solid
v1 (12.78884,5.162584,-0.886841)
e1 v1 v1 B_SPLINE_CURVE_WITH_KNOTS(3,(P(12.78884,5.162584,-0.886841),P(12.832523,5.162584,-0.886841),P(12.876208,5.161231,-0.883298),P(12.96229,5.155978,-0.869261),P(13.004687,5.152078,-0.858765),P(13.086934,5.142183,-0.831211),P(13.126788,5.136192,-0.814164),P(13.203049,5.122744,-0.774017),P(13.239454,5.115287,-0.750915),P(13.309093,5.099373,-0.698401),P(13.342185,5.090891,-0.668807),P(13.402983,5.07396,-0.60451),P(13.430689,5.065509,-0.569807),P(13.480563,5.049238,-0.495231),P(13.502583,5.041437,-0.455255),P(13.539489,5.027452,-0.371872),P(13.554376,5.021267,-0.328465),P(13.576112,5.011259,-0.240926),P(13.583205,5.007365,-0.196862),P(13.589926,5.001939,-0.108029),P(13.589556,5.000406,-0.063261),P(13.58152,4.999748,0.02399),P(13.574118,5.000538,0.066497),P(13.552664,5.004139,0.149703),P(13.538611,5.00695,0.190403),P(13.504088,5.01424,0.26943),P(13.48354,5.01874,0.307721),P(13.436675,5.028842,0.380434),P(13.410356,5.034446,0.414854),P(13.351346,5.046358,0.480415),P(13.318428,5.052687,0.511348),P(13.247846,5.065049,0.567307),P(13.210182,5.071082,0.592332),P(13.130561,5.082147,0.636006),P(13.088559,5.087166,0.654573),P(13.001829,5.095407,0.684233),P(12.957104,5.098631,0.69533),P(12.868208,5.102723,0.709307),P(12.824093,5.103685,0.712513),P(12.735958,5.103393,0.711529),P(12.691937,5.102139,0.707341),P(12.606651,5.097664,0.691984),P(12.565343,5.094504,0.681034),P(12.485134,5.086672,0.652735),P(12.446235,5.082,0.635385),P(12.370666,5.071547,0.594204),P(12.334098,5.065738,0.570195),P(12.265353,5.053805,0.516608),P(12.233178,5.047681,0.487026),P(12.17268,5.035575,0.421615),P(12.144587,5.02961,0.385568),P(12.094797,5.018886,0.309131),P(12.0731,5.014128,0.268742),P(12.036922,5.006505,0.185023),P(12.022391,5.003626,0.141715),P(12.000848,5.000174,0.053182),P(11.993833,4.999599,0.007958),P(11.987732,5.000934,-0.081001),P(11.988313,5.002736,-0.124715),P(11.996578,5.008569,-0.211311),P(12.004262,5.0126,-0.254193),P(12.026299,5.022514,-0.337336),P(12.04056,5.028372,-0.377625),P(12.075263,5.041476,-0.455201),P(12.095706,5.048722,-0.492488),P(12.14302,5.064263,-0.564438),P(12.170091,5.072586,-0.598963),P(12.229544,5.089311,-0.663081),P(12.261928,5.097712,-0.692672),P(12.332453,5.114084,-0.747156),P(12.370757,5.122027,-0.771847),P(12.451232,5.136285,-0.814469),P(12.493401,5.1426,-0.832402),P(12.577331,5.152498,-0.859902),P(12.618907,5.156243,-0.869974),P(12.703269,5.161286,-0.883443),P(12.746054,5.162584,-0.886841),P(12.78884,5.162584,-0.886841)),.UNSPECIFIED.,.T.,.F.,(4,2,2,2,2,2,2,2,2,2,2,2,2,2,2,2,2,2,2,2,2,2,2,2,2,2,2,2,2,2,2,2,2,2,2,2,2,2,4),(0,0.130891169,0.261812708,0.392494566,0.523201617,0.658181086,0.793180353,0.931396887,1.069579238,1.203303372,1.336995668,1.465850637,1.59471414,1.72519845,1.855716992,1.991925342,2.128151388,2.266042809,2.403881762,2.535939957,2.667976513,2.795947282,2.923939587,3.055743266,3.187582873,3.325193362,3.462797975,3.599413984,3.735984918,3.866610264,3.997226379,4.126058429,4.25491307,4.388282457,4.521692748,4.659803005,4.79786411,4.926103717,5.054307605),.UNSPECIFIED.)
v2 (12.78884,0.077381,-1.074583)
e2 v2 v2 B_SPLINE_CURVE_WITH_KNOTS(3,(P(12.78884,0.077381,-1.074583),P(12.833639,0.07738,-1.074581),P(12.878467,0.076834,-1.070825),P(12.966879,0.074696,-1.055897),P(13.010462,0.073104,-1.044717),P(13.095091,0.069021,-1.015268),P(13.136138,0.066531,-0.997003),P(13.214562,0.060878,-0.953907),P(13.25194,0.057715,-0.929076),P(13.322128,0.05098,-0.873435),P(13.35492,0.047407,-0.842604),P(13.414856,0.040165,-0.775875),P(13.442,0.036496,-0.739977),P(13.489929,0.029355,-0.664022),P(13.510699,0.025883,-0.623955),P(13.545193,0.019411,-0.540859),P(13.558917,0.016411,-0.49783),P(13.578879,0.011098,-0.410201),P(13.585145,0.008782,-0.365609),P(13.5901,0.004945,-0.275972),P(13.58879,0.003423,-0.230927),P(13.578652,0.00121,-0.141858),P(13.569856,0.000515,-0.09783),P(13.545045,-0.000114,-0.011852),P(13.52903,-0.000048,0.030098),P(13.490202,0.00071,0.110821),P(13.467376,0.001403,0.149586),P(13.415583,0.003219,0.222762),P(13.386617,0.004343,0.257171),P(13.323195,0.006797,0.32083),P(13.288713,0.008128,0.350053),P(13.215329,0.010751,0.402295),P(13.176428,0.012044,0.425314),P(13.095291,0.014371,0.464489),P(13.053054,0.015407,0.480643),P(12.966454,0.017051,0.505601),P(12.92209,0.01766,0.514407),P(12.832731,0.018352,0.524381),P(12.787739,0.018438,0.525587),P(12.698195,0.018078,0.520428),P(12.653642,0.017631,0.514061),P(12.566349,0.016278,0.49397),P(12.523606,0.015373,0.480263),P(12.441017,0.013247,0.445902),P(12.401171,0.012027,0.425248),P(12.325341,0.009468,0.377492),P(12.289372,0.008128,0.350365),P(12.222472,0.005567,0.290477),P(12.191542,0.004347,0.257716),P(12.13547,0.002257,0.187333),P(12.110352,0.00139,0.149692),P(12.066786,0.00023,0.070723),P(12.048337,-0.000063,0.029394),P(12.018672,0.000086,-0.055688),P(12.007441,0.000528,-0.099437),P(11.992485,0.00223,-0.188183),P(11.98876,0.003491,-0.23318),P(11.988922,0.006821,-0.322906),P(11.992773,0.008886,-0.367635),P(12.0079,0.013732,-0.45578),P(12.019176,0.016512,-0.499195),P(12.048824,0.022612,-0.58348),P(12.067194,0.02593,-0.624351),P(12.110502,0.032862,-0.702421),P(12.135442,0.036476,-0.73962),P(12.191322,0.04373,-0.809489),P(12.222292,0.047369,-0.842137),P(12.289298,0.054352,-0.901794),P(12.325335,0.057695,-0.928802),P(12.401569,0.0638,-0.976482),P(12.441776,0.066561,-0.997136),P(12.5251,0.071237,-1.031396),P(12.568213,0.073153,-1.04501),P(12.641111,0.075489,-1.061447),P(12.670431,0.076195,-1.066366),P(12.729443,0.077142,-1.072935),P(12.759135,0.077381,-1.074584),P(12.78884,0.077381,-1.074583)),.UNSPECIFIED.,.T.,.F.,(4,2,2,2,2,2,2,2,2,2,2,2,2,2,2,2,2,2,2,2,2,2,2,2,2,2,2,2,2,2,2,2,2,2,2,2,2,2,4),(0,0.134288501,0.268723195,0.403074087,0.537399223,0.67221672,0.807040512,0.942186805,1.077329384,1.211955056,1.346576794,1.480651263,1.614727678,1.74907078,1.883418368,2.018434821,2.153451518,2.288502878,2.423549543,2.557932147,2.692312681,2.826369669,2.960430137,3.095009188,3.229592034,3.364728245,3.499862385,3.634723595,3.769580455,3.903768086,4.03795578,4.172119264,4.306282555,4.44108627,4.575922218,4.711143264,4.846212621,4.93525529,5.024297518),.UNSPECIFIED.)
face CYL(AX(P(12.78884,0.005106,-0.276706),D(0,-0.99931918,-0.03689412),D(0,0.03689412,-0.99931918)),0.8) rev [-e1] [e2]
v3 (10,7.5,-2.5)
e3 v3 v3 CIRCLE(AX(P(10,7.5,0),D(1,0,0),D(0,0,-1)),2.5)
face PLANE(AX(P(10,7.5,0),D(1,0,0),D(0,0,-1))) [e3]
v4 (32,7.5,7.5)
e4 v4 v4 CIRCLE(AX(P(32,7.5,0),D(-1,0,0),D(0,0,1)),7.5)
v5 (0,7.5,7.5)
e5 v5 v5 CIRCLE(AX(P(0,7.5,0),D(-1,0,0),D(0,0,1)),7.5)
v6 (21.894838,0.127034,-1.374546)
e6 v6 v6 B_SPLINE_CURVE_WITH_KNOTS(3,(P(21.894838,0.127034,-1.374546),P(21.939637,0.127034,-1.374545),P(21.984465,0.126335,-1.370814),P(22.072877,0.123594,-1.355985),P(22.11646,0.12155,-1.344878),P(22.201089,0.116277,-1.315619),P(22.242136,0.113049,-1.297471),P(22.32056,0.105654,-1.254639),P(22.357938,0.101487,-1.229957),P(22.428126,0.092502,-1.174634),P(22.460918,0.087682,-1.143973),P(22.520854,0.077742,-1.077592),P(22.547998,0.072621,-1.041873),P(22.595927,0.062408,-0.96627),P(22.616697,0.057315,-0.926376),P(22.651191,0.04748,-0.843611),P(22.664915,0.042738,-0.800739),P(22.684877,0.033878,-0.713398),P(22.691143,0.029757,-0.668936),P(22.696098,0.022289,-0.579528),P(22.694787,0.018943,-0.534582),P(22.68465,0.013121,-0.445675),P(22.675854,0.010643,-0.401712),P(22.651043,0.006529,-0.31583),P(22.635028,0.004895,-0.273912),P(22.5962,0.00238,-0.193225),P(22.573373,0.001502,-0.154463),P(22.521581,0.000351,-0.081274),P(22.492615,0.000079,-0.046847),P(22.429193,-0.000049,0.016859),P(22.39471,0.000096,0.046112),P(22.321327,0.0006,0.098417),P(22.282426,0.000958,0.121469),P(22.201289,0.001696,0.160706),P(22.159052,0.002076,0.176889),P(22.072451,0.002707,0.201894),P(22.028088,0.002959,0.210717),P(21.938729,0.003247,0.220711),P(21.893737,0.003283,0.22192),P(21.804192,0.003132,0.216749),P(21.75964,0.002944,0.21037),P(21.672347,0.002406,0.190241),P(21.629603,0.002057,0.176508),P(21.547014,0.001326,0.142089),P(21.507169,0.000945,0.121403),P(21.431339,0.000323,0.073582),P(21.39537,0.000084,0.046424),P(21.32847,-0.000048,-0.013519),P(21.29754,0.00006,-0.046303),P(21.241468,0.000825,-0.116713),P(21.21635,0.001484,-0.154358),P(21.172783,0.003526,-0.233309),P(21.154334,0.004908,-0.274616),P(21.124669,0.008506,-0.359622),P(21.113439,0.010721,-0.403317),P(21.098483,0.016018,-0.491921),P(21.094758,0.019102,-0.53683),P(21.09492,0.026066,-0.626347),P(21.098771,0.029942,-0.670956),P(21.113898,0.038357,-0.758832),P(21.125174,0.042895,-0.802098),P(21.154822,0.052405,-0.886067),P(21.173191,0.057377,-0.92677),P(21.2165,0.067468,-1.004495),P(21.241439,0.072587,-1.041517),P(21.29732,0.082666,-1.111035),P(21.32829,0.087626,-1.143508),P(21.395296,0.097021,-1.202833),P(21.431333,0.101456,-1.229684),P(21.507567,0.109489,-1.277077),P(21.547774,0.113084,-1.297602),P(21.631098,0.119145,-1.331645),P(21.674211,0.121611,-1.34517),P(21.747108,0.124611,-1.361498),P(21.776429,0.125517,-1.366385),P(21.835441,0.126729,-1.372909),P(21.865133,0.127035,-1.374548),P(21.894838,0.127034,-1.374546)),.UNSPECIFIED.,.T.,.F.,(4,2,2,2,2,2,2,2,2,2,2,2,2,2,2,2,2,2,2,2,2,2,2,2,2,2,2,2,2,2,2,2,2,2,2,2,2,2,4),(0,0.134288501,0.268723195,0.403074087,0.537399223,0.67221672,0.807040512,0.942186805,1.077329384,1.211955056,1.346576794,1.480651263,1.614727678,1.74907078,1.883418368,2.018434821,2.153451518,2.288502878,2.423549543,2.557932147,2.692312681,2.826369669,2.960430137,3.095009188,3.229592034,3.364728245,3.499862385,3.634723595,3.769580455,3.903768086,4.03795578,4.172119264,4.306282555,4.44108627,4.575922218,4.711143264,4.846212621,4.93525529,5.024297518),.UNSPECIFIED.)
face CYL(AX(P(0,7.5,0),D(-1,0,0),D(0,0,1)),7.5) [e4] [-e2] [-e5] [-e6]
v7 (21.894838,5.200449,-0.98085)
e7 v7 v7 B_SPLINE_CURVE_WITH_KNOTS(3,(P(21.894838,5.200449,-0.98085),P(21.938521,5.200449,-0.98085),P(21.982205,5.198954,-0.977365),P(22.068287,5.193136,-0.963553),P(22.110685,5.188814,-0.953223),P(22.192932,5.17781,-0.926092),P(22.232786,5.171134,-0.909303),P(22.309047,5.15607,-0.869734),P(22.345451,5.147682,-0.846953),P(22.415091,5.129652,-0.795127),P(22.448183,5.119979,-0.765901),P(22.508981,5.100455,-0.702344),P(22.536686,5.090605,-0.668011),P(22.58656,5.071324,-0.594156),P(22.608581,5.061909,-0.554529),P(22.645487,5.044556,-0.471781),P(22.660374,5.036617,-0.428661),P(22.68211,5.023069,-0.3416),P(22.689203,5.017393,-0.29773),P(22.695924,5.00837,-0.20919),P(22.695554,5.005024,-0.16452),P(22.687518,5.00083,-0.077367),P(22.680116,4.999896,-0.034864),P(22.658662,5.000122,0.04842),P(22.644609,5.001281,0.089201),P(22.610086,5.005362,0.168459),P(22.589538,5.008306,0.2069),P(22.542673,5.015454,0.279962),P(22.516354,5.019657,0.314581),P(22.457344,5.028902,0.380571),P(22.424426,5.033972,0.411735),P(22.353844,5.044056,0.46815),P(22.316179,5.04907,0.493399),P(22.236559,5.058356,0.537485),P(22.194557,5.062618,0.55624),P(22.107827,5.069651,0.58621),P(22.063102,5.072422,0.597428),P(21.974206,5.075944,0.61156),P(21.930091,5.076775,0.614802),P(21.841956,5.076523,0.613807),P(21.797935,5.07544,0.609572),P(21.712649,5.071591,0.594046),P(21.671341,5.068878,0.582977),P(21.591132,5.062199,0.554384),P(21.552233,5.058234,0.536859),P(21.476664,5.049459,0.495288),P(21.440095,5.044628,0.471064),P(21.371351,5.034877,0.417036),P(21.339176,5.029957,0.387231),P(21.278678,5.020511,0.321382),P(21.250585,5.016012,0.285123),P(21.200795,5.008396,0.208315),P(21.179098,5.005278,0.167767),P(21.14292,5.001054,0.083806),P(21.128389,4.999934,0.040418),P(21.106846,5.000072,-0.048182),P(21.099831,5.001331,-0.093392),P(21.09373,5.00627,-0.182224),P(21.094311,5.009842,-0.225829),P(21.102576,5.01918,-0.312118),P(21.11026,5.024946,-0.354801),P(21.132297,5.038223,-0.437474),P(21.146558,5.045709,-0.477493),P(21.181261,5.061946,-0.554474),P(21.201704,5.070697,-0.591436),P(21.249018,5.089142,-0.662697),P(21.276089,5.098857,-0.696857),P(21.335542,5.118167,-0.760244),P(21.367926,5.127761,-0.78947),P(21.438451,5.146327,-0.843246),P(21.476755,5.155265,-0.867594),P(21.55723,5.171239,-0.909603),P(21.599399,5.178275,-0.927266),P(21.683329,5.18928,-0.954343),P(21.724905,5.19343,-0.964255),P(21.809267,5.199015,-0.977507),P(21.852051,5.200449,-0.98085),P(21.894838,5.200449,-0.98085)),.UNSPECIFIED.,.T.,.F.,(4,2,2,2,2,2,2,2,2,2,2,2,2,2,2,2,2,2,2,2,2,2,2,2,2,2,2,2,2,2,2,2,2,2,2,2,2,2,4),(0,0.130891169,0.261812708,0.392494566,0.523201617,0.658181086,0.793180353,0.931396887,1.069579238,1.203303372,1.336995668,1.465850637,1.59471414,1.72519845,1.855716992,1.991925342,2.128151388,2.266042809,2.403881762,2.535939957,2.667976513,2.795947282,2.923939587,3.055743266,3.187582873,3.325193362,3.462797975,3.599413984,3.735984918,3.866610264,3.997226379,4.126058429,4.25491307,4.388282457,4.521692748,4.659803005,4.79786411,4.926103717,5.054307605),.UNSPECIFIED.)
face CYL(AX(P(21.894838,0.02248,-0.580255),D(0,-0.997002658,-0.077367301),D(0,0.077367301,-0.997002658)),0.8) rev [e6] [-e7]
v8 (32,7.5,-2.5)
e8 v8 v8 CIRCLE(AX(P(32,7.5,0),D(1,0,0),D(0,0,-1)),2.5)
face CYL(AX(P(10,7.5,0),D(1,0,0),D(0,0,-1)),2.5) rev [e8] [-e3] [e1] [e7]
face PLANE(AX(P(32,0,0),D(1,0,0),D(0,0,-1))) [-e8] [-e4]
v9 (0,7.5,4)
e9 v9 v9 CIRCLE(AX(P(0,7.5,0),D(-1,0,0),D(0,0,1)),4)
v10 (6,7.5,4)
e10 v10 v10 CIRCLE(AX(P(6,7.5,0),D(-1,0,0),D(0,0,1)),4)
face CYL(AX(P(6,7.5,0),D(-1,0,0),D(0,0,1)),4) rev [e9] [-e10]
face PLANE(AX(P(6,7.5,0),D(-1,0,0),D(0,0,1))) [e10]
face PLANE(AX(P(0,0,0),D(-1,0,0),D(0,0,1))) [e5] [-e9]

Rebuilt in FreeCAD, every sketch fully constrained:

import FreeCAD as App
import Part
import Sketcher


def add_polygon(sketch, points):
    """Adds a closed chain of lines whose ends are joined by coincident constraints."""
    first, n = sketch.GeometryCount, len(points)
    for a, b in zip(points, points[1:] + points[:1]):
        sketch.addGeometry(Part.LineSegment(App.Vector(*a, 0), App.Vector(*b, 0)), False)
    for i in range(n):
        sketch.addConstraint(Sketcher.Constraint("Coincident", first + i, 2, first + (i + 1) % n, 1))

doc = App.newDocument("Part")
body = doc.addObject("PartDesign::Body", "Body")

# Sketch on XY plane
sketch1 = body.newObject("Sketcher::SketchObject", "Sketch")
sketch1.AttachmentSupport = (doc.getObject("XY_Plane"), [""])
sketch1.MapMode = "FlatFace"
add_polygon(sketch1, [(0, 8), (0, 0), (32, 0), (32, 8)])  # lines 0-3
sketch1.addGeometry(Part.LineSegment(App.Vector(0, 8, 0), App.Vector(32, 8, 0)), True)  # axis
sketch1.addConstraint([
    Sketcher.Constraint("Vertical", 0),
    Sketcher.Constraint("Horizontal", 1),
    Sketcher.Constraint("Vertical", 2),
    Sketcher.Constraint("Horizontal", 3),
    Sketcher.Constraint("Horizontal", 4),
    Sketcher.Constraint("Coincident", 0, 2, -1, 1),
    Sketcher.Constraint("Coincident", 4, 1, 3, 2),
    Sketcher.Constraint("Vertical", 1, 2, 4, 2),
    Sketcher.Constraint("DistanceX", 1, 1, 1, 2, 32.0),
    Sketcher.Constraint("DistanceY", 0, 2, 0, 1, 7.5),
])
revolution = body.newObject("PartDesign::Revolution", "Revolution")
revolution.Profile = sketch1
revolution.ReferenceAxis = (sketch1, ["Axis0"])
revolution.Angle = 360

# Sketch on YZ plane
sketch2 = body.newObject("Sketcher::SketchObject", "Sketch001")
sketch2.AttachmentSupport = (doc.getObject("YZ_Plane"), [""])
sketch2.MapMode = "FlatFace"
sketch2.AttachmentOffset = App.Placement(App.Vector(0, 0, 32), App.Rotation())
sketch2.addGeometry(Part.Circle(App.Vector(7.5, 0, 0), App.Vector(0, 0, 1), 2.5), False)
sketch2.addConstraint([
    Sketcher.Constraint("PointOnObject", 0, 3, -1),
    Sketcher.Constraint("Diameter", 0, 5.0),
    Sketcher.Constraint("DistanceX", -1, 1, 0, 3, 7.5),
])
pocket1 = body.newObject("PartDesign::Pocket", "Pocket")
pocket1.Profile = sketch2
pocket1.Length = 22

# Sketch on YZ plane
sketch3 = body.newObject("Sketcher::SketchObject", "Sketch002")
sketch3.AttachmentSupport = (doc.getObject("YZ_Plane"), [""])
sketch3.MapMode = "FlatFace"
sketch3.addGeometry(Part.Circle(App.Vector(7.5, 0, 0), App.Vector(0, 0, 1), 4), False)
sketch3.addConstraint([
    Sketcher.Constraint("PointOnObject", 0, 3, -1),
    Sketcher.Constraint("Diameter", 0, 8.0),
    Sketcher.Constraint("DistanceX", -1, 1, 0, 3, 7.5),
])
pocket2 = body.newObject("PartDesign::Pocket", "Pocket001")
pocket2.Profile = sketch3
pocket2.Length = 6
pocket2.Reversed = True

# Sketch on an angled plane
sketch4 = body.newObject("Sketcher::SketchObject", "Sketch003")
sketch4.Placement = App.Placement(App.Vector(0, -0.022413, -0.001739), App.Rotation(App.Vector(0, 0.077367301, -0.997002658), App.Vector(0.999999999, 0, 0), App.Vector(0, -0.997002658, -0.077367301), "ZXY"))
sketch4.addGeometry(Part.Circle(App.Vector(0.6, 21.9, 0), App.Vector(0, 0, 1), 0.8), False)
sketch4.addConstraint([
    Sketcher.Constraint("Diameter", 0, 1.6),
    Sketcher.Constraint("DistanceX", -1, 1, 0, 3, 0.580255),
    Sketcher.Constraint("DistanceY", -1, 1, 0, 3, 21.894838),
])
doc.recompute()
hole = body.newObject("PartDesign::Hole", "Hole")
hole.Profile = sketch4
hole.ThreadType = "None"
hole.Diameter = 1.6
hole.DepthType = "Dimension"
hole.Depth = 6
hole.DrillPoint = "Angled"
hole.DrillPointAngle = 118

# Sketch on an angled plane
sketch5 = body.newObject("Sketcher::SketchObject", "Sketch004")
sketch5.Placement = App.Placement(App.Vector(0, -0.005103, -0.000188), App.Rotation(App.Vector(0, 0.036894007, -0.999319184), App.Vector(0.999999999, 0, 0), App.Vector(0, -0.999319184, -0.036894007), "ZXY"))
sketch5.addGeometry(Part.Circle(App.Vector(0.3, 12.8, 0), App.Vector(0, 0, 1), 0.8), False)
sketch5.addConstraint([
    Sketcher.Constraint("Diameter", 0, 1.6),
    Sketcher.Constraint("DistanceY", -1, 1, 0, 3, 12.78884),
    Sketcher.Constraint("DistanceX", -1, 1, 0, 3, 0.276706),
])
doc.recompute()
hole2 = body.newObject("PartDesign::Hole", "Hole001")
hole2.Profile = sketch5
hole2.ThreadType = "None"
hole2.Diameter = 1.6
hole2.DepthType = "Dimension"
hole2.Depth = 6
hole2.DrillPoint = "Angled"
hole2.DrillPointAngle = 118

doc.recompute()
